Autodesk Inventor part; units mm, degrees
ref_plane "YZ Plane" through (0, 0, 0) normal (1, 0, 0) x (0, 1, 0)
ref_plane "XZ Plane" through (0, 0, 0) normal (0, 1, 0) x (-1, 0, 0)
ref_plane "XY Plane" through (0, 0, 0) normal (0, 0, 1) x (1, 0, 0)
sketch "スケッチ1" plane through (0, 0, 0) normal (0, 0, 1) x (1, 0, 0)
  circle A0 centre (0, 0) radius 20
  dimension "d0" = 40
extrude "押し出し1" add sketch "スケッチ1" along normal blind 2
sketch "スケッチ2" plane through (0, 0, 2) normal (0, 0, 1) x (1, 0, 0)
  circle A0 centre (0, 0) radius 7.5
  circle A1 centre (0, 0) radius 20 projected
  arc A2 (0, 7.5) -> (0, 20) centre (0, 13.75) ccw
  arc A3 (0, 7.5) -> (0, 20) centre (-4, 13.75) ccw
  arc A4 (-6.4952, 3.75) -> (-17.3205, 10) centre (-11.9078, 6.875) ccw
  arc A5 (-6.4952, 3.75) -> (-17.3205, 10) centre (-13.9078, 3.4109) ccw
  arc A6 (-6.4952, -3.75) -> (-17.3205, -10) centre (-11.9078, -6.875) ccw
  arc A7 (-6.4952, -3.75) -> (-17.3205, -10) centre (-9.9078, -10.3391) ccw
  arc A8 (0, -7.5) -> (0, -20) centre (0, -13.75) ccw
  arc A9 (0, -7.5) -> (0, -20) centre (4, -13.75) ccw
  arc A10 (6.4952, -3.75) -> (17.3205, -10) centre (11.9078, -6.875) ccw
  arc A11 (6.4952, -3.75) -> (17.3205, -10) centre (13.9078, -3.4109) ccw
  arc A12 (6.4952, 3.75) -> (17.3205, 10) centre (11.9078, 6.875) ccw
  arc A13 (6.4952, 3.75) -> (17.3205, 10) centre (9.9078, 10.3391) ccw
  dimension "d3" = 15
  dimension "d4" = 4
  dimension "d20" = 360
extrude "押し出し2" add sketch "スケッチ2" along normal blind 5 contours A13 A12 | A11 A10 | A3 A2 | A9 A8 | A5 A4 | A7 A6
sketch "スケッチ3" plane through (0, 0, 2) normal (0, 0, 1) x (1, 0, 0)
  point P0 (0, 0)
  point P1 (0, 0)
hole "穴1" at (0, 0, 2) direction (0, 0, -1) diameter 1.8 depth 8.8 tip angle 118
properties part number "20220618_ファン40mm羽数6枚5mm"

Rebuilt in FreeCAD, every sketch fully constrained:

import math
import FreeCAD as App
import Part
import Sketcher
from FreeCAD import Vector

doc = App.newDocument("Part")
params = doc.addObject("Spreadsheet::Sheet", "Params")
for row, (alias, value) in enumerate([
    ("sketch1_diameter", "40 mm"),
    ("pad1_length", "2 mm"),
    ("sketch2_radius", "6.25 mm"),
    ("pad2_length", "5 mm"),
    ("sketch3_diameter", "1.8 mm"),
    ("hole_diameter", "1.8 mm"),
    ("hole_depth", "8.8 mm"),
], start=1):
    params.set(f"A{row}", alias)
    params.set(f"B{row}", "=" + value)
    params.setAlias(f"B{row}", alias)

body = doc.addObject("PartDesign::Body", "Body")

sketch1 = body.newObject("Sketcher::SketchObject", "Sketch")
sketch1.AttachmentSupport = (doc.getObject("XY_Plane"), [""])
sketch1.MapMode = "FlatFace"
sketch1.addGeometry(Part.Circle(Vector(0, 0, 0), Vector(0, 0, 1), 20), False)
sketch1.addConstraint(Sketcher.Constraint("Coincident", 0, 3, -1, 1))
sketch1.addConstraint(Sketcher.Constraint("Diameter", 0, 40.0))
sketch1.setExpression("Constraints[1]", "Params.sketch1_diameter")
pad1 = body.newObject("PartDesign::Pad", "Pad")
pad1.Profile = sketch1
pad1.setExpression("Length", "Params.pad1_length")

sketch2 = body.newObject("Sketcher::SketchObject", "Sketch001")
sketch2.AttachmentSupport = (doc.getObject("XY_Plane"), [""])
sketch2.MapMode = "FlatFace"
sketch2.AttachmentOffset = App.Placement(Vector(0, 0, 2), App.Rotation())
sketch2.addGeometry(Part.ArcOfCircle(Part.Circle(Vector(9.9078, 10.3391, 0), Vector(0, 0, 1), 7.420383), math.radians(-117.38036), math.radians(-2.619216)), False)
sketch2.addGeometry(Part.ArcOfCircle(Part.Circle(Vector(11.9078, 6.875, 0), Vector(0, 0, 1), 6.249949), math.radians(-149.999731), math.radians(29.999811)), False)
sketch2.addGeometry(Part.ArcOfCircle(Part.Circle(Vector(13.9078, -3.4109, 0), Vector(0, 0, 1), 7.420352), math.radians(-177.380749), math.radians(-62.618955)), False)
sketch2.addGeometry(Part.ArcOfCircle(Part.Circle(Vector(11.9078, -6.875, 0), Vector(0, 0, 1), 6.249949), math.radians(149.999731), math.radians(330.000189)), False)
sketch2.addGeometry(Part.ArcOfCircle(Part.Circle(Vector(-4, 13.75, 0), Vector(0, 0, 1), 7.420411), math.radians(-57.380757), math.radians(57.380757)), False)
sketch2.addGeometry(Part.ArcOfCircle(Part.Circle(Vector(0, 13.75, 0), Vector(0, 0, 1), 6.25), math.radians(-90), math.radians(90)), False)
sketch2.addGeometry(Part.ArcOfCircle(Part.Circle(Vector(4, -13.75, 0), Vector(0, 0, 1), 7.420411), math.radians(122.619243), math.radians(237.380757)), False)
sketch2.addGeometry(Part.ArcOfCircle(Part.Circle(Vector(0, -13.75, 0), Vector(0, 0, 1), 6.25), math.radians(90), math.radians(270)), False)
sketch2.addGeometry(Part.ArcOfCircle(Part.Circle(Vector(-13.9078, 3.4109, 0), Vector(0, 0, 1), 7.420352), math.radians(2.619251), math.radians(117.381045)), False)
sketch2.addGeometry(Part.ArcOfCircle(Part.Circle(Vector(-11.9078, 6.875, 0), Vector(0, 0, 1), 6.249949), math.radians(-30.000269), math.radians(150.000189)), False)
sketch2.addGeometry(Part.ArcOfCircle(Part.Circle(Vector(-9.9078, -10.3391, 0), Vector(0, 0, 1), 7.420383), math.radians(62.61964), math.radians(177.380784)), False)
sketch2.addGeometry(Part.ArcOfCircle(Part.Circle(Vector(-11.9078, -6.875, 0), Vector(0, 0, 1), 6.249949), math.radians(30.000269), math.radians(209.999811)), False)
sketch2.addConstraint(Sketcher.Constraint("Coincident", 0, 1, 1, 1))
sketch2.addConstraint(Sketcher.Constraint("Coincident", 1, 2, 0, 2))
sketch2.addConstraint(Sketcher.Constraint("Coincident", 2, 1, 3, 1))
sketch2.addConstraint(Sketcher.Constraint("Coincident", 3, 2, 2, 2))
sketch2.addConstraint(Sketcher.Constraint("Coincident", 4, 1, 5, 1))
sketch2.addConstraint(Sketcher.Constraint("Coincident", 5, 2, 4, 2))
sketch2.addConstraint(Sketcher.Constraint("Coincident", 6, 1, 7, 1))
sketch2.addConstraint(Sketcher.Constraint("Coincident", 7, 2, 6, 2))
sketch2.addConstraint(Sketcher.Constraint("Coincident", 8, 1, 9, 1))
sketch2.addConstraint(Sketcher.Constraint("Coincident", 9, 2, 8, 2))
sketch2.addConstraint(Sketcher.Constraint("Coincident", 10, 1, 11, 1))
sketch2.addConstraint(Sketcher.Constraint("Coincident", 11, 2, 10, 2))
sketch2.addConstraint(Sketcher.Constraint("Equal", 0, 2))
sketch2.addConstraint(Sketcher.Constraint("Equal", 1, 3))
sketch2.addConstraint(Sketcher.Constraint("Equal", 2, 4))
sketch2.addConstraint(Sketcher.Constraint("Equal", 3, 5))
sketch2.addConstraint(Sketcher.Constraint("Equal", 4, 6))
sketch2.addConstraint(Sketcher.Constraint("Equal", 5, 7))
sketch2.addConstraint(Sketcher.Constraint("Equal", 6, 8))
sketch2.addConstraint(Sketcher.Constraint("Equal", 7, 9))
sketch2.addConstraint(Sketcher.Constraint("Equal", 8, 10))
sketch2.addConstraint(Sketcher.Constraint("Equal", 9, 11))
sketch2.addConstraint(Sketcher.Constraint("Symmetric", 4, 3, 6, 3, -1, 1))
sketch2.addConstraint(Sketcher.Constraint("Symmetric", 5, 3, 7, 3, -1, 1))
sketch2.addConstraint(Sketcher.Constraint("Symmetric", 2, 3, 8, 3, -1, 1))
sketch2.addConstraint(Sketcher.Constraint("Symmetric", 3, 3, 9, 3, -1, 1))
sketch2.addConstraint(Sketcher.Constraint("Symmetric", 0, 3, 10, 3, -1, 1))
sketch2.addConstraint(Sketcher.Constraint("Symmetric", 1, 3, 11, 3, -1, 1))
sketch2.addConstraint(Sketcher.Constraint("Symmetric", 1, 3, 9, 3, -2))
sketch2.addConstraint(Sketcher.Constraint("PointOnObject", 5, 3, -2))
sketch2.addConstraint(Sketcher.Constraint("PointOnObject", 4, 1, -2))
sketch2.addConstraint(Sketcher.Constraint("PointOnObject", 5, 2, -2))
sketch2.addConstraint(Sketcher.Constraint("Horizontal", 0, 1, 8, 1))
sketch2.addConstraint(Sketcher.Constraint("Horizontal", 1, 2, 9, 2))
sketch2.addConstraint(Sketcher.Constraint("DistanceX", 4, 3, -1, 1, 4.0))
sketch2.addConstraint(Sketcher.Constraint("DistanceX", 0, 3, 2, 3, 4.0))
sketch2.addConstraint(Sketcher.Constraint("Radius", 1, 6.25))
sketch2.addConstraint(Sketcher.Constraint("DistanceY", -1, 1, 1, 2, 10.0))
sketch2.addConstraint(Sketcher.Constraint("DistanceY", -1, 1, 5, 2, 20.0))
sketch2.addConstraint(Sketcher.Constraint("DistanceX", 0, 3, 1, 3, 2.0))
sketch2.addConstraint(Sketcher.Constraint("DistanceX", -1, 1, 0, 3, 9.9078))
sketch2.setExpression("Constraints[36]", "Params.sketch2_radius")
pad2 = body.newObject("PartDesign::Pad", "Pad001")
pad2.Profile = sketch2
pad2.setExpression("Length", "Params.pad2_length")

sketch3 = body.newObject("Sketcher::SketchObject", "Sketch002")
sketch3.AttachmentSupport = (doc.getObject("XY_Plane"), [""])
sketch3.MapMode = "FlatFace"
sketch3.AttachmentOffset = App.Placement(Vector(0, 0, 2), App.Rotation())
sketch3.addGeometry(Part.Circle(Vector(0, 0, 0), Vector(0, 0, 1), 0.9), False)
sketch3.addConstraint(Sketcher.Constraint("Coincident", 0, 3, -1, 1))
sketch3.addConstraint(Sketcher.Constraint("Diameter", 0, 1.8))
sketch3.setExpression("Constraints[1]", "Params.sketch3_diameter")
doc.recompute()
hole = body.newObject("PartDesign::Hole", "Hole")
hole.Profile = sketch3
hole.ThreadType = "None"
hole.setExpression("Diameter", "Params.hole_diameter")
hole.DepthType = "Dimension"
hole.setExpression("Depth", "Params.hole_depth")
hole.DrillPoint = "Angled"
hole.DrillPointAngle = 118

doc.recompute()
